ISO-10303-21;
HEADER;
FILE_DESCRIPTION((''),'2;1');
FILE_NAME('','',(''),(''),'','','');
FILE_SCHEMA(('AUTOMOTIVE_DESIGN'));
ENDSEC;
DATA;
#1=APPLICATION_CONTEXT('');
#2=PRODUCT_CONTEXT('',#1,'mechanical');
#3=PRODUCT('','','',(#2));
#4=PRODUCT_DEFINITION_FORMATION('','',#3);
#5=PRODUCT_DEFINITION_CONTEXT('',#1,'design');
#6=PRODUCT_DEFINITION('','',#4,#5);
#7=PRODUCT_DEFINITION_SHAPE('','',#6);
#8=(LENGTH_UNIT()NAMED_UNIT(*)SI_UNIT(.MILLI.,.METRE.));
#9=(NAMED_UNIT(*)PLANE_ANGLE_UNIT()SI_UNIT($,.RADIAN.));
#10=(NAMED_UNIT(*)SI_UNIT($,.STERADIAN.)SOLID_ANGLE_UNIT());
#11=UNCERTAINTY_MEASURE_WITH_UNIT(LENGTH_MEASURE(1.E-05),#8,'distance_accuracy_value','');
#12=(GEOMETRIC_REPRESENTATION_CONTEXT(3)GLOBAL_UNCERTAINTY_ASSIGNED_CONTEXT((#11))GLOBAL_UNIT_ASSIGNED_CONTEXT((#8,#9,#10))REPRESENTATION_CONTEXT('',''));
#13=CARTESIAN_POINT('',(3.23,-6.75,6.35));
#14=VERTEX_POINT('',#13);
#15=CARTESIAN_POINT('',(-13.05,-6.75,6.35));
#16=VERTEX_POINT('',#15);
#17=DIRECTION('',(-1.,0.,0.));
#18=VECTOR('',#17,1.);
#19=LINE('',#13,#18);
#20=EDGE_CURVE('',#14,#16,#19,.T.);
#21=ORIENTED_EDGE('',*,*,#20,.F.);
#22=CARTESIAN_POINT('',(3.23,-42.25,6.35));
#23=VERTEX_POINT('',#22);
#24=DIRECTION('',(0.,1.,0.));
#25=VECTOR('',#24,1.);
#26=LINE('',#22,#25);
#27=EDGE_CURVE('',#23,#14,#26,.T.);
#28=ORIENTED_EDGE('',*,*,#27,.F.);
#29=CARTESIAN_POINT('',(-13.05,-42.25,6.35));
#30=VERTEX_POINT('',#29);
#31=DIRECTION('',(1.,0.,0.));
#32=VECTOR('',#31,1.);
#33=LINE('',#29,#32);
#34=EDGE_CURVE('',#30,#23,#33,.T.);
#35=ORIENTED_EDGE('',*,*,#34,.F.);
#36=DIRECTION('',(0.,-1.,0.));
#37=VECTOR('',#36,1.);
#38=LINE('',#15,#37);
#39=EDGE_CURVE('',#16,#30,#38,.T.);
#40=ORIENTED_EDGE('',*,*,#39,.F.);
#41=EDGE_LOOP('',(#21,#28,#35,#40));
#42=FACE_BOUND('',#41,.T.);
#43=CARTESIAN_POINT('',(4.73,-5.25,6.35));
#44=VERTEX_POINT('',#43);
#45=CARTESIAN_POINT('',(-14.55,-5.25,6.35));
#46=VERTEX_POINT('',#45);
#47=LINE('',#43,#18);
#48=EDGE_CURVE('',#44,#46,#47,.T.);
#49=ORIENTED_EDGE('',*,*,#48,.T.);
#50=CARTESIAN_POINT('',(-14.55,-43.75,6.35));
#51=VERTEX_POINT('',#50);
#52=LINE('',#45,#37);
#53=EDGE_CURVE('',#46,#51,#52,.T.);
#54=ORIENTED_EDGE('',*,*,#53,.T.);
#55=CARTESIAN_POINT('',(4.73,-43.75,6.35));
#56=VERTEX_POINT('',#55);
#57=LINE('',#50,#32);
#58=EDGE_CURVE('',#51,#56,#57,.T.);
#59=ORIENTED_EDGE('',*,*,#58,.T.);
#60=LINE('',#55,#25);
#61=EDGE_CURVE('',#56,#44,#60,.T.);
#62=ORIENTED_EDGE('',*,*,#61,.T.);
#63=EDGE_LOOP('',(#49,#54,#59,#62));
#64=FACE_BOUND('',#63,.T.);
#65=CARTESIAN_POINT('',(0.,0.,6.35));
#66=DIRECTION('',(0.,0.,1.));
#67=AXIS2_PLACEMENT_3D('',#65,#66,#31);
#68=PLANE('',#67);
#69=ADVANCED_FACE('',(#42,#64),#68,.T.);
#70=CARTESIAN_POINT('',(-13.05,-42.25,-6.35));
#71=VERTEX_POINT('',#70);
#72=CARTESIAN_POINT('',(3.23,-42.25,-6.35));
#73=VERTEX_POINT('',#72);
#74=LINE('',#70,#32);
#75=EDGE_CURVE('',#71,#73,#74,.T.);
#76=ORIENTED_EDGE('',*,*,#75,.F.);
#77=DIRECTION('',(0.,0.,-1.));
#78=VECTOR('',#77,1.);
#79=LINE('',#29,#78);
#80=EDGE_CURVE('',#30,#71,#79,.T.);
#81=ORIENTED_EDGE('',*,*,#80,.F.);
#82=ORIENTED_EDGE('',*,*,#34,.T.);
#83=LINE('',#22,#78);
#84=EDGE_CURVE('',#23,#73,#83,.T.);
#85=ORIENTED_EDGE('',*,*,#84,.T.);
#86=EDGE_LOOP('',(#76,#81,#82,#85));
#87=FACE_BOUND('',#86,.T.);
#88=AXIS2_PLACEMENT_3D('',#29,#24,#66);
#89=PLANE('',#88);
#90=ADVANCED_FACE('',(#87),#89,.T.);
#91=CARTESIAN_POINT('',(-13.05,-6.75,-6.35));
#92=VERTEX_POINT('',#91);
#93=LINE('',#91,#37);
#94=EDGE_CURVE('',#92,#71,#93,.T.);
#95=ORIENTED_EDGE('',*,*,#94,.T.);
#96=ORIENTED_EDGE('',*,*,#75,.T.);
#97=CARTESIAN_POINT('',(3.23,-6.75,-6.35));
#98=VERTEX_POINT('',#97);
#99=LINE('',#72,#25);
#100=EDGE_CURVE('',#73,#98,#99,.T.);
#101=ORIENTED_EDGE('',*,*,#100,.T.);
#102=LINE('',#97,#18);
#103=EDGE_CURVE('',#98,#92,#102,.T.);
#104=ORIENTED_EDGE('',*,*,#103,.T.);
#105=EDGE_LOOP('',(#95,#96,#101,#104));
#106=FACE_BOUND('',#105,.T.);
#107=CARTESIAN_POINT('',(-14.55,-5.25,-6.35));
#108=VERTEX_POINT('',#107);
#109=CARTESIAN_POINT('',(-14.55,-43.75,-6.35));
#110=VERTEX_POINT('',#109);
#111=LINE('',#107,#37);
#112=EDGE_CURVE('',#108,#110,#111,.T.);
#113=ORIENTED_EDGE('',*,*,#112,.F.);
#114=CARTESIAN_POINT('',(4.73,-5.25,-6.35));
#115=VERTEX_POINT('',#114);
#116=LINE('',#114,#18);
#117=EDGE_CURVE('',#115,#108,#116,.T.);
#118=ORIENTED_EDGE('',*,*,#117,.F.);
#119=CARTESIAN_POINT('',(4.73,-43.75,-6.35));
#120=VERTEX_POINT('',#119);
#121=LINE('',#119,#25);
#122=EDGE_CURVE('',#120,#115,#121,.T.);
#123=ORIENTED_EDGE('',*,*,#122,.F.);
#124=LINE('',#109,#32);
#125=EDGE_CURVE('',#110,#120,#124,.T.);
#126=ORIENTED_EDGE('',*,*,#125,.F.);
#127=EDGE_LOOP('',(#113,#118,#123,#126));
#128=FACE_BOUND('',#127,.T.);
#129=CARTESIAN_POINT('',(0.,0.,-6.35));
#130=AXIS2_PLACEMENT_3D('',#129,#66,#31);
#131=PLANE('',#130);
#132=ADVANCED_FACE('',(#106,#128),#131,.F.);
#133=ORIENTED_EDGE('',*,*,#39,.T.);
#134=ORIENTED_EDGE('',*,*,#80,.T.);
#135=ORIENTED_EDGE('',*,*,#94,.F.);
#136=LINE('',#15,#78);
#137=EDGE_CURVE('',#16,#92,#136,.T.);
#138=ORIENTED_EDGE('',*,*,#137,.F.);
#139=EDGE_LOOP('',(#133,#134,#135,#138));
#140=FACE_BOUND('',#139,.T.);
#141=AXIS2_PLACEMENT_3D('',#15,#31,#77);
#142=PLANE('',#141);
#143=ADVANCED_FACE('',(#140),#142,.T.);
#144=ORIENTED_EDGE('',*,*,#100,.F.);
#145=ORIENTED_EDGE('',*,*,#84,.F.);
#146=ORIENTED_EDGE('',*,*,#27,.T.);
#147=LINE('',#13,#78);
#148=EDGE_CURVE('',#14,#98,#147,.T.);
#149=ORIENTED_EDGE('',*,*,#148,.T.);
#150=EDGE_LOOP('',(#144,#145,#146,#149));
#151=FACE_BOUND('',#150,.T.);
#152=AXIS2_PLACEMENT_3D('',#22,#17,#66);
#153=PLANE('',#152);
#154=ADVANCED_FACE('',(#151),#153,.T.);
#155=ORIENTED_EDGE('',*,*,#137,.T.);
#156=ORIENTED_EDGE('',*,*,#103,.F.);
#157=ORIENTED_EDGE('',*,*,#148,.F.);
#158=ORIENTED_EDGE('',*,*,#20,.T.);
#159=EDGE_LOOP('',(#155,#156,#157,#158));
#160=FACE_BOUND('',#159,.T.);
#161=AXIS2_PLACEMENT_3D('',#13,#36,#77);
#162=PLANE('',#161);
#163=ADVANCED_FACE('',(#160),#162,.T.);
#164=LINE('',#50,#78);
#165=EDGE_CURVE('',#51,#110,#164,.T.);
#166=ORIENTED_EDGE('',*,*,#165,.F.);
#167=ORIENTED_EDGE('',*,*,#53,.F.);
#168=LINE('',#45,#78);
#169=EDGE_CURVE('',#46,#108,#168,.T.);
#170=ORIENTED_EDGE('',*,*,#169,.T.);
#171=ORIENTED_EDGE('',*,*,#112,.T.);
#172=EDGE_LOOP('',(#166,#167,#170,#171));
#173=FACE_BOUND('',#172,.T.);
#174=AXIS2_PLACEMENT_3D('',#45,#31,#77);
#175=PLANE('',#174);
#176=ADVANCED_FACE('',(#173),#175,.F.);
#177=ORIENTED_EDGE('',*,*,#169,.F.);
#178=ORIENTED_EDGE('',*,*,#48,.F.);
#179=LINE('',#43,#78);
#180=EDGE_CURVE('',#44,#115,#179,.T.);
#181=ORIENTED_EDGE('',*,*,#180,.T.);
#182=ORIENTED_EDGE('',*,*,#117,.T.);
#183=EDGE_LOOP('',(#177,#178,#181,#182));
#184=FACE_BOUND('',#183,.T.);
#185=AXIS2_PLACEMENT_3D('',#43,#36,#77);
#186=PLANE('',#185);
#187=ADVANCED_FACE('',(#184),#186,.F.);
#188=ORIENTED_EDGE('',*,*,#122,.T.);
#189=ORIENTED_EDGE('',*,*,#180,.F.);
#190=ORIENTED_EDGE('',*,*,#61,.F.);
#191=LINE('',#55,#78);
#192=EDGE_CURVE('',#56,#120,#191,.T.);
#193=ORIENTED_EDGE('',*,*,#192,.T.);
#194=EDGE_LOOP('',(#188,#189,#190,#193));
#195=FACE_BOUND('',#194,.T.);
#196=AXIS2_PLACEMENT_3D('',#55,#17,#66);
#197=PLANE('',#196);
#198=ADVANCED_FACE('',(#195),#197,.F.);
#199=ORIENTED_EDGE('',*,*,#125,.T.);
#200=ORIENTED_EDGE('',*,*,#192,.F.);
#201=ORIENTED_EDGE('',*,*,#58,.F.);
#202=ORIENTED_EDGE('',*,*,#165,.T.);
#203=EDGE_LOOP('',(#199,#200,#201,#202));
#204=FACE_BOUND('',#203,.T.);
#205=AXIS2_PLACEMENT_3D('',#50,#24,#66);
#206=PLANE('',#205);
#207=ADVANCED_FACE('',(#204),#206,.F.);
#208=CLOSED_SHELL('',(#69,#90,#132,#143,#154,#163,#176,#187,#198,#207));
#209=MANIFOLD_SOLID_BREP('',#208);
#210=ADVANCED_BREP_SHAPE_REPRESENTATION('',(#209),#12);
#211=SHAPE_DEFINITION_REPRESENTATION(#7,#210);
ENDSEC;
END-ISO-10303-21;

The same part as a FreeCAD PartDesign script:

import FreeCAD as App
import Part
import Sketcher
from FreeCAD import Vector
Q = App.Units.Quantity

doc = App.newDocument("Part")
body = doc.addObject("PartDesign::Body", "Body")

sketch1 = body.newObject("Sketcher::SketchObject", "Sketch")
sketch1.AttachmentSupport = (doc.getObject("XY_Plane"), [""])
sketch1.MapMode = "FlatFace"
sketch1.addGeometry(Part.LineSegment(Vector(-15, -5, 0), Vector(-15, -44, 0)), False)
sketch1.addGeometry(Part.LineSegment(Vector(-15, -44, 0), Vector(5, -44, 0)), False)
sketch1.addGeometry(Part.LineSegment(Vector(5, -44, 0), Vector(5, -5, 0)), False)
sketch1.addGeometry(Part.LineSegment(Vector(5, -5, 0), Vector(-15, -5, 0)), False)
sketch1.addGeometry(Part.LineSegment(Vector(3, -42, 0), Vector(-13, -42, 0)), False)
sketch1.addGeometry(Part.LineSegment(Vector(-13, -42, 0), Vector(-13, -7, 0)), False)
sketch1.addGeometry(Part.LineSegment(Vector(-13, -7, 0), Vector(3, -7, 0)), False)
sketch1.addGeometry(Part.LineSegment(Vector(3, -7, 0), Vector(3, -42, 0)), False)
sketch1.addConstraint(Sketcher.Constraint("Coincident", 0, 2, 1, 1))
sketch1.addConstraint(Sketcher.Constraint("Coincident", 1, 2, 2, 1))
sketch1.addConstraint(Sketcher.Constraint("Coincident", 2, 2, 3, 1))
sketch1.addConstraint(Sketcher.Constraint("Coincident", 3, 2, 0, 1))
sketch1.addConstraint(Sketcher.Constraint("Coincident", 4, 2, 5, 1))
sketch1.addConstraint(Sketcher.Constraint("Coincident", 5, 2, 6, 1))
sketch1.addConstraint(Sketcher.Constraint("Coincident", 6, 2, 7, 1))
sketch1.addConstraint(Sketcher.Constraint("Coincident", 7, 2, 4, 1))
sketch1.addConstraint(Sketcher.Constraint("Vertical", 0))
sketch1.addConstraint(Sketcher.Constraint("Horizontal", 1))
sketch1.addConstraint(Sketcher.Constraint("Vertical", 2))
sketch1.addConstraint(Sketcher.Constraint("Horizontal", 3))
sketch1.addConstraint(Sketcher.Constraint("Horizontal", 4))
sketch1.addConstraint(Sketcher.Constraint("Vertical", 5))
sketch1.addConstraint(Sketcher.Constraint("Horizontal", 6))
sketch1.addConstraint(Sketcher.Constraint("Vertical", 7))
sketch1.addConstraint(Sketcher.Constraint("DistanceY", 0, 2, 0, 1, Q("38.5 mm")))
sketch1.addConstraint(Sketcher.Constraint("DistanceY", 5, 1, 5, 2, Q("35.5 mm")))
sketch1.addConstraint(Sketcher.Constraint("DistanceY", 4, 2, 3, 2, Q("37 mm")))
sketch1.addConstraint(Sketcher.Constraint("DistanceX", 1, 1, 1, 2, Q("19.28 mm")))
sketch1.addConstraint(Sketcher.Constraint("DistanceX", 4, 2, 4, 1, Q("16.28 mm")))
sketch1.addConstraint(Sketcher.Constraint("DistanceX", 0, 2, 4, 2, Q("1.5 mm")))
sketch1.addConstraint(Sketcher.Constraint("DistanceX", 0, 2, -1, 1, Q("14.55 mm")))
sketch1.addConstraint(Sketcher.Constraint("DistanceY", 0, 2, -1, 1, Q("43.75 mm")))
pad1 = body.newObject("PartDesign::Pad", "Pad")
pad1.Profile = sketch1
pad1.Length = 12.7
pad1.Midplane = True

doc.recompute()
